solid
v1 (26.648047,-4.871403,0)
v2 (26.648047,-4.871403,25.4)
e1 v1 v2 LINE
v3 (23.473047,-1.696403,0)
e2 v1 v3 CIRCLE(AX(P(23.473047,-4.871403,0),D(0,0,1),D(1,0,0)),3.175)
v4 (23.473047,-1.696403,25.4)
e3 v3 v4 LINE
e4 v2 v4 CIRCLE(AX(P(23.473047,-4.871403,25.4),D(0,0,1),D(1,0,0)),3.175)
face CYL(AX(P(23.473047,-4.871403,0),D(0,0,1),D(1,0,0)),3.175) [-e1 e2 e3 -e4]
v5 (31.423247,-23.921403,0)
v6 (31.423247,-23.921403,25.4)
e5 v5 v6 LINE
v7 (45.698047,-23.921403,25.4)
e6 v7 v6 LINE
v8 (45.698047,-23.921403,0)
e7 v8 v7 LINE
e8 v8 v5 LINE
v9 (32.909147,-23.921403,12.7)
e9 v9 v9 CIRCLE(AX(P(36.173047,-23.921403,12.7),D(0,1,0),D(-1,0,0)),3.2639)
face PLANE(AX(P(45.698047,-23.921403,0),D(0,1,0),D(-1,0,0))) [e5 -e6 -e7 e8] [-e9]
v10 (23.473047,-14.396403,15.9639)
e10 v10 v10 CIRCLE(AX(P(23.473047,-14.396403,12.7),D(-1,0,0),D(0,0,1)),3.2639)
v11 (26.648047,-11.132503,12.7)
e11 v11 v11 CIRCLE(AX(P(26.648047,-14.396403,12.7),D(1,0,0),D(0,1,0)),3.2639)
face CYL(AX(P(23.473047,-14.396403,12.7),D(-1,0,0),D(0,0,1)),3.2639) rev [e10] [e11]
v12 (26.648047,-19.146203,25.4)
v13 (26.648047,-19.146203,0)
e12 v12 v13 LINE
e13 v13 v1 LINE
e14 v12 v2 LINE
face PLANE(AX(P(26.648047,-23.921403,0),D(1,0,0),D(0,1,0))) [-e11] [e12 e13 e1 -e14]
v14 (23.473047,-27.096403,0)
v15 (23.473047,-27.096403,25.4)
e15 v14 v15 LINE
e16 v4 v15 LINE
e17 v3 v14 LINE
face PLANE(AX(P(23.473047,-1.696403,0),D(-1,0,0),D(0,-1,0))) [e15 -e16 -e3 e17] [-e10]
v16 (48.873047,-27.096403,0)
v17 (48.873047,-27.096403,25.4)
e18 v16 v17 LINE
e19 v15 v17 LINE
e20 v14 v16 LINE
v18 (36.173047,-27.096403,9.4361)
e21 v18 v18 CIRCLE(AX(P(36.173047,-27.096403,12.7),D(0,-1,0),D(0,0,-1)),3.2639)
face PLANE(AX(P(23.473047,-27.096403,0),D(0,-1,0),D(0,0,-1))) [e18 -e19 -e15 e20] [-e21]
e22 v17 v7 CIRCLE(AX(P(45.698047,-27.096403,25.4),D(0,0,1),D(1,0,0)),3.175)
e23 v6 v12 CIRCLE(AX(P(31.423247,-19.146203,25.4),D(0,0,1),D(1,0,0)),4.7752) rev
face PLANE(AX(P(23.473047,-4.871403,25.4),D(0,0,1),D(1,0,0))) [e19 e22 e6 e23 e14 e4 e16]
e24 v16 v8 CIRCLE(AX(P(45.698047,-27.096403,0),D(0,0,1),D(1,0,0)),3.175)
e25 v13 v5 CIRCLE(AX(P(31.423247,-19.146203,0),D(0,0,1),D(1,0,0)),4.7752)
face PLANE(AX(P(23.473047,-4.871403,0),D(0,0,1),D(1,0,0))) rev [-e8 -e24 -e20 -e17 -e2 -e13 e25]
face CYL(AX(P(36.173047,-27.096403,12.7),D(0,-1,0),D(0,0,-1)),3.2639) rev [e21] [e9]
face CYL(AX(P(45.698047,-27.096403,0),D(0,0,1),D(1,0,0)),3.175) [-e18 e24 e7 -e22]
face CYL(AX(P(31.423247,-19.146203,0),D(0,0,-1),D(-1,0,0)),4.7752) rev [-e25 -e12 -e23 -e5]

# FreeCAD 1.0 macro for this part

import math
import FreeCAD as App
import Part
import Sketcher

V = App.Vector
Q = App.Units.Quantity


def edges_at(feature, points):
    """Names of the edges that pass closest to the given points."""
    edges = feature.Shape.Edges
    near = lambda p: min(range(len(edges)), key=lambda i: edges[i].distToShape(Part.Vertex(*p))[0])
    return sorted({f"Edge{near(p) + 1}" for p in points})

doc = App.newDocument("Part")
params = doc.addObject("Spreadsheet::Sheet", "Params")
for row, (alias, value) in enumerate([
    ("sketch1_width", "1 in"),
    ("sketch1_radius", "0.125 in"),
    ("pad1_length", "1 in"),
    ("sketch2_diameter", "0.257 in"),
    ("hole_diameter", "0.257 in"),
    ("hole_depth", "1 in"),
    ("sketch3_diameter", "0.257 in"),
    ("hole2_diameter", "0.257 in"),
    ("hole2_depth", "1 in"),
    ("fillet_radius", "0.188 in"),
], start=1):
    params.set(f"A{row}", alias)
    params.set(f"B{row}", "=" + value)
    params.setAlias(f"B{row}", alias)

body = doc.addObject("PartDesign::Body", "Body")

# Sketch on XY plane
sketch1 = body.newObject("Sketcher::SketchObject", "Sketch")
sketch1.AttachmentSupport = (doc.getObject("XY_Plane"), [""])
sketch1.MapMode = "FlatFace"
sketch1.AttachmentOffset = App.Placement(V(0, 0, 1 * 25.4), App.Rotation())
sketch1.addGeometry([
    Part.LineSegment(V(23.5, -1.7, 0), V(23.5, -27.1, 0)),  # 0
    Part.LineSegment(V(23.5, -27.1, 0), V(48.9, -27.1, 0)),  # 1
    Part.ArcOfCircle(Part.Circle(V(45.7, -27.1, 0), V(0, 0, 1), 3.2), math.radians(0), math.radians(90)),  # 2
    Part.LineSegment(V(45.7, -23.9, 0), V(26.6, -23.9, 0)),  # 3
    Part.LineSegment(V(26.6, -23.9, 0), V(26.6, -4.9, 0)),  # 4
    Part.ArcOfCircle(Part.Circle(V(23.5, -4.9, 0), V(0, 0, 1), 3.2), math.radians(0), math.radians(90)),  # 5
], False)
sketch1.addConstraint([
    Sketcher.Constraint("Coincident", 0, 2, 1, 1),
    Sketcher.Constraint("Coincident", 1, 2, 2, 1),
    Sketcher.Constraint("Tangent", 2, 2, 3, 1),
    Sketcher.Constraint("Coincident", 3, 2, 4, 1),
    Sketcher.Constraint("Tangent", 4, 2, 5, 1),
    Sketcher.Constraint("Coincident", 5, 2, 0, 1),
    Sketcher.Constraint("Vertical", 0),
    Sketcher.Constraint("Horizontal", 1),
    Sketcher.Constraint("Horizontal", 3),
    Sketcher.Constraint("Vertical", 4),
    Sketcher.Constraint("Equal", 2, 5),
    Sketcher.Constraint("Horizontal", 2, 3, 0, 2),
    Sketcher.Constraint("Vertical", 5, 3, 0, 2),
    Sketcher.Constraint("Equal", 1, 0),
    Sketcher.Constraint("DistanceX", 1, 1, 1, 2, Q("1 in")),
    Sketcher.Constraint("Radius", 2, Q("0.125 in")),
    Sketcher.Constraint("DistanceX", -1, 1, 2, 3, 45.698047),
    Sketcher.Constraint("DistanceY", 2, 3, -1, 1, 27.096403),
])
sketch1.setExpression("Constraints[14]", "Params.sketch1_width")
sketch1.setExpression("Constraints[15]", "Params.sketch1_radius")
pad1 = body.newObject("PartDesign::Pad", "Pad")
pad1.Profile = sketch1
pad1.setExpression("Length", "Params.pad1_length")
pad1.Reversed = True

# Sketch on XZ plane
sketch2 = body.newObject("Sketcher::SketchObject", "Sketch001")
sketch2.AttachmentSupport = (doc.getObject("XZ_Plane"), [""])
sketch2.MapMode = "FlatFace"
sketch2.AttachmentOffset = App.Placement(V(0, 0, 27.096403), App.Rotation())
sketch2.addGeometry(Part.Circle(V(36.2, 12.7, 0), V(0, 0, 1), 3.3), False)
sketch2.addConstraint([
    Sketcher.Constraint("Diameter", 0, Q("0.257 in")),
    Sketcher.Constraint("DistanceY", -1, 1, 0, 3, Q("0.5 in")),
    Sketcher.Constraint("DistanceX", -1, 1, 0, 3, 36.173047),
])
sketch2.setExpression("Constraints[0]", "Params.sketch2_diameter")
doc.recompute()
hole = body.newObject("PartDesign::Hole", "Hole")
hole.Profile = sketch2
hole.ThreadType = "None"
hole.setExpression("Diameter", "Params.hole_diameter")
hole.DepthType = "Dimension"
hole.setExpression("Depth", "Params.hole_depth")
hole.DrillPoint = "Flat"

# Sketch on YZ plane
sketch3 = body.newObject("Sketcher::SketchObject", "Sketch002")
sketch3.AttachmentSupport = (doc.getObject("YZ_Plane"), [""])
sketch3.MapMode = "FlatFace"
sketch3.AttachmentOffset = App.Placement(V(0, 0, 23.473047), App.Rotation())
sketch3.addGeometry(Part.Circle(V(-14.4, 12.7, 0), V(0, 0, 1), 3.3), False)
sketch3.addConstraint([
    Sketcher.Constraint("Diameter", 0, Q("0.257 in")),
    Sketcher.Constraint("DistanceY", -1, 1, 0, 3, Q("0.5 in")),
    Sketcher.Constraint("DistanceX", 0, 3, -1, 1, 14.396403),
])
sketch3.setExpression("Constraints[0]", "Params.sketch3_diameter")
doc.recompute()
hole2 = body.newObject("PartDesign::Hole", "Hole001")
hole2.Profile = sketch3
hole2.ThreadType = "None"
hole2.setExpression("Diameter", "Params.hole2_diameter")
hole2.DepthType = "Dimension"
hole2.setExpression("Depth", "Params.hole2_depth")
hole2.DrillPoint = "Flat"
hole2.Reversed = True
doc.recompute()

fillet = body.newObject("PartDesign::Fillet", "Fillet")
fillet.Base = (hole2, edges_at(hole2, [(26.648, -23.921, 12.7)]))
fillet.setExpression("Radius", "Params.fillet_radius")

doc.recompute()
